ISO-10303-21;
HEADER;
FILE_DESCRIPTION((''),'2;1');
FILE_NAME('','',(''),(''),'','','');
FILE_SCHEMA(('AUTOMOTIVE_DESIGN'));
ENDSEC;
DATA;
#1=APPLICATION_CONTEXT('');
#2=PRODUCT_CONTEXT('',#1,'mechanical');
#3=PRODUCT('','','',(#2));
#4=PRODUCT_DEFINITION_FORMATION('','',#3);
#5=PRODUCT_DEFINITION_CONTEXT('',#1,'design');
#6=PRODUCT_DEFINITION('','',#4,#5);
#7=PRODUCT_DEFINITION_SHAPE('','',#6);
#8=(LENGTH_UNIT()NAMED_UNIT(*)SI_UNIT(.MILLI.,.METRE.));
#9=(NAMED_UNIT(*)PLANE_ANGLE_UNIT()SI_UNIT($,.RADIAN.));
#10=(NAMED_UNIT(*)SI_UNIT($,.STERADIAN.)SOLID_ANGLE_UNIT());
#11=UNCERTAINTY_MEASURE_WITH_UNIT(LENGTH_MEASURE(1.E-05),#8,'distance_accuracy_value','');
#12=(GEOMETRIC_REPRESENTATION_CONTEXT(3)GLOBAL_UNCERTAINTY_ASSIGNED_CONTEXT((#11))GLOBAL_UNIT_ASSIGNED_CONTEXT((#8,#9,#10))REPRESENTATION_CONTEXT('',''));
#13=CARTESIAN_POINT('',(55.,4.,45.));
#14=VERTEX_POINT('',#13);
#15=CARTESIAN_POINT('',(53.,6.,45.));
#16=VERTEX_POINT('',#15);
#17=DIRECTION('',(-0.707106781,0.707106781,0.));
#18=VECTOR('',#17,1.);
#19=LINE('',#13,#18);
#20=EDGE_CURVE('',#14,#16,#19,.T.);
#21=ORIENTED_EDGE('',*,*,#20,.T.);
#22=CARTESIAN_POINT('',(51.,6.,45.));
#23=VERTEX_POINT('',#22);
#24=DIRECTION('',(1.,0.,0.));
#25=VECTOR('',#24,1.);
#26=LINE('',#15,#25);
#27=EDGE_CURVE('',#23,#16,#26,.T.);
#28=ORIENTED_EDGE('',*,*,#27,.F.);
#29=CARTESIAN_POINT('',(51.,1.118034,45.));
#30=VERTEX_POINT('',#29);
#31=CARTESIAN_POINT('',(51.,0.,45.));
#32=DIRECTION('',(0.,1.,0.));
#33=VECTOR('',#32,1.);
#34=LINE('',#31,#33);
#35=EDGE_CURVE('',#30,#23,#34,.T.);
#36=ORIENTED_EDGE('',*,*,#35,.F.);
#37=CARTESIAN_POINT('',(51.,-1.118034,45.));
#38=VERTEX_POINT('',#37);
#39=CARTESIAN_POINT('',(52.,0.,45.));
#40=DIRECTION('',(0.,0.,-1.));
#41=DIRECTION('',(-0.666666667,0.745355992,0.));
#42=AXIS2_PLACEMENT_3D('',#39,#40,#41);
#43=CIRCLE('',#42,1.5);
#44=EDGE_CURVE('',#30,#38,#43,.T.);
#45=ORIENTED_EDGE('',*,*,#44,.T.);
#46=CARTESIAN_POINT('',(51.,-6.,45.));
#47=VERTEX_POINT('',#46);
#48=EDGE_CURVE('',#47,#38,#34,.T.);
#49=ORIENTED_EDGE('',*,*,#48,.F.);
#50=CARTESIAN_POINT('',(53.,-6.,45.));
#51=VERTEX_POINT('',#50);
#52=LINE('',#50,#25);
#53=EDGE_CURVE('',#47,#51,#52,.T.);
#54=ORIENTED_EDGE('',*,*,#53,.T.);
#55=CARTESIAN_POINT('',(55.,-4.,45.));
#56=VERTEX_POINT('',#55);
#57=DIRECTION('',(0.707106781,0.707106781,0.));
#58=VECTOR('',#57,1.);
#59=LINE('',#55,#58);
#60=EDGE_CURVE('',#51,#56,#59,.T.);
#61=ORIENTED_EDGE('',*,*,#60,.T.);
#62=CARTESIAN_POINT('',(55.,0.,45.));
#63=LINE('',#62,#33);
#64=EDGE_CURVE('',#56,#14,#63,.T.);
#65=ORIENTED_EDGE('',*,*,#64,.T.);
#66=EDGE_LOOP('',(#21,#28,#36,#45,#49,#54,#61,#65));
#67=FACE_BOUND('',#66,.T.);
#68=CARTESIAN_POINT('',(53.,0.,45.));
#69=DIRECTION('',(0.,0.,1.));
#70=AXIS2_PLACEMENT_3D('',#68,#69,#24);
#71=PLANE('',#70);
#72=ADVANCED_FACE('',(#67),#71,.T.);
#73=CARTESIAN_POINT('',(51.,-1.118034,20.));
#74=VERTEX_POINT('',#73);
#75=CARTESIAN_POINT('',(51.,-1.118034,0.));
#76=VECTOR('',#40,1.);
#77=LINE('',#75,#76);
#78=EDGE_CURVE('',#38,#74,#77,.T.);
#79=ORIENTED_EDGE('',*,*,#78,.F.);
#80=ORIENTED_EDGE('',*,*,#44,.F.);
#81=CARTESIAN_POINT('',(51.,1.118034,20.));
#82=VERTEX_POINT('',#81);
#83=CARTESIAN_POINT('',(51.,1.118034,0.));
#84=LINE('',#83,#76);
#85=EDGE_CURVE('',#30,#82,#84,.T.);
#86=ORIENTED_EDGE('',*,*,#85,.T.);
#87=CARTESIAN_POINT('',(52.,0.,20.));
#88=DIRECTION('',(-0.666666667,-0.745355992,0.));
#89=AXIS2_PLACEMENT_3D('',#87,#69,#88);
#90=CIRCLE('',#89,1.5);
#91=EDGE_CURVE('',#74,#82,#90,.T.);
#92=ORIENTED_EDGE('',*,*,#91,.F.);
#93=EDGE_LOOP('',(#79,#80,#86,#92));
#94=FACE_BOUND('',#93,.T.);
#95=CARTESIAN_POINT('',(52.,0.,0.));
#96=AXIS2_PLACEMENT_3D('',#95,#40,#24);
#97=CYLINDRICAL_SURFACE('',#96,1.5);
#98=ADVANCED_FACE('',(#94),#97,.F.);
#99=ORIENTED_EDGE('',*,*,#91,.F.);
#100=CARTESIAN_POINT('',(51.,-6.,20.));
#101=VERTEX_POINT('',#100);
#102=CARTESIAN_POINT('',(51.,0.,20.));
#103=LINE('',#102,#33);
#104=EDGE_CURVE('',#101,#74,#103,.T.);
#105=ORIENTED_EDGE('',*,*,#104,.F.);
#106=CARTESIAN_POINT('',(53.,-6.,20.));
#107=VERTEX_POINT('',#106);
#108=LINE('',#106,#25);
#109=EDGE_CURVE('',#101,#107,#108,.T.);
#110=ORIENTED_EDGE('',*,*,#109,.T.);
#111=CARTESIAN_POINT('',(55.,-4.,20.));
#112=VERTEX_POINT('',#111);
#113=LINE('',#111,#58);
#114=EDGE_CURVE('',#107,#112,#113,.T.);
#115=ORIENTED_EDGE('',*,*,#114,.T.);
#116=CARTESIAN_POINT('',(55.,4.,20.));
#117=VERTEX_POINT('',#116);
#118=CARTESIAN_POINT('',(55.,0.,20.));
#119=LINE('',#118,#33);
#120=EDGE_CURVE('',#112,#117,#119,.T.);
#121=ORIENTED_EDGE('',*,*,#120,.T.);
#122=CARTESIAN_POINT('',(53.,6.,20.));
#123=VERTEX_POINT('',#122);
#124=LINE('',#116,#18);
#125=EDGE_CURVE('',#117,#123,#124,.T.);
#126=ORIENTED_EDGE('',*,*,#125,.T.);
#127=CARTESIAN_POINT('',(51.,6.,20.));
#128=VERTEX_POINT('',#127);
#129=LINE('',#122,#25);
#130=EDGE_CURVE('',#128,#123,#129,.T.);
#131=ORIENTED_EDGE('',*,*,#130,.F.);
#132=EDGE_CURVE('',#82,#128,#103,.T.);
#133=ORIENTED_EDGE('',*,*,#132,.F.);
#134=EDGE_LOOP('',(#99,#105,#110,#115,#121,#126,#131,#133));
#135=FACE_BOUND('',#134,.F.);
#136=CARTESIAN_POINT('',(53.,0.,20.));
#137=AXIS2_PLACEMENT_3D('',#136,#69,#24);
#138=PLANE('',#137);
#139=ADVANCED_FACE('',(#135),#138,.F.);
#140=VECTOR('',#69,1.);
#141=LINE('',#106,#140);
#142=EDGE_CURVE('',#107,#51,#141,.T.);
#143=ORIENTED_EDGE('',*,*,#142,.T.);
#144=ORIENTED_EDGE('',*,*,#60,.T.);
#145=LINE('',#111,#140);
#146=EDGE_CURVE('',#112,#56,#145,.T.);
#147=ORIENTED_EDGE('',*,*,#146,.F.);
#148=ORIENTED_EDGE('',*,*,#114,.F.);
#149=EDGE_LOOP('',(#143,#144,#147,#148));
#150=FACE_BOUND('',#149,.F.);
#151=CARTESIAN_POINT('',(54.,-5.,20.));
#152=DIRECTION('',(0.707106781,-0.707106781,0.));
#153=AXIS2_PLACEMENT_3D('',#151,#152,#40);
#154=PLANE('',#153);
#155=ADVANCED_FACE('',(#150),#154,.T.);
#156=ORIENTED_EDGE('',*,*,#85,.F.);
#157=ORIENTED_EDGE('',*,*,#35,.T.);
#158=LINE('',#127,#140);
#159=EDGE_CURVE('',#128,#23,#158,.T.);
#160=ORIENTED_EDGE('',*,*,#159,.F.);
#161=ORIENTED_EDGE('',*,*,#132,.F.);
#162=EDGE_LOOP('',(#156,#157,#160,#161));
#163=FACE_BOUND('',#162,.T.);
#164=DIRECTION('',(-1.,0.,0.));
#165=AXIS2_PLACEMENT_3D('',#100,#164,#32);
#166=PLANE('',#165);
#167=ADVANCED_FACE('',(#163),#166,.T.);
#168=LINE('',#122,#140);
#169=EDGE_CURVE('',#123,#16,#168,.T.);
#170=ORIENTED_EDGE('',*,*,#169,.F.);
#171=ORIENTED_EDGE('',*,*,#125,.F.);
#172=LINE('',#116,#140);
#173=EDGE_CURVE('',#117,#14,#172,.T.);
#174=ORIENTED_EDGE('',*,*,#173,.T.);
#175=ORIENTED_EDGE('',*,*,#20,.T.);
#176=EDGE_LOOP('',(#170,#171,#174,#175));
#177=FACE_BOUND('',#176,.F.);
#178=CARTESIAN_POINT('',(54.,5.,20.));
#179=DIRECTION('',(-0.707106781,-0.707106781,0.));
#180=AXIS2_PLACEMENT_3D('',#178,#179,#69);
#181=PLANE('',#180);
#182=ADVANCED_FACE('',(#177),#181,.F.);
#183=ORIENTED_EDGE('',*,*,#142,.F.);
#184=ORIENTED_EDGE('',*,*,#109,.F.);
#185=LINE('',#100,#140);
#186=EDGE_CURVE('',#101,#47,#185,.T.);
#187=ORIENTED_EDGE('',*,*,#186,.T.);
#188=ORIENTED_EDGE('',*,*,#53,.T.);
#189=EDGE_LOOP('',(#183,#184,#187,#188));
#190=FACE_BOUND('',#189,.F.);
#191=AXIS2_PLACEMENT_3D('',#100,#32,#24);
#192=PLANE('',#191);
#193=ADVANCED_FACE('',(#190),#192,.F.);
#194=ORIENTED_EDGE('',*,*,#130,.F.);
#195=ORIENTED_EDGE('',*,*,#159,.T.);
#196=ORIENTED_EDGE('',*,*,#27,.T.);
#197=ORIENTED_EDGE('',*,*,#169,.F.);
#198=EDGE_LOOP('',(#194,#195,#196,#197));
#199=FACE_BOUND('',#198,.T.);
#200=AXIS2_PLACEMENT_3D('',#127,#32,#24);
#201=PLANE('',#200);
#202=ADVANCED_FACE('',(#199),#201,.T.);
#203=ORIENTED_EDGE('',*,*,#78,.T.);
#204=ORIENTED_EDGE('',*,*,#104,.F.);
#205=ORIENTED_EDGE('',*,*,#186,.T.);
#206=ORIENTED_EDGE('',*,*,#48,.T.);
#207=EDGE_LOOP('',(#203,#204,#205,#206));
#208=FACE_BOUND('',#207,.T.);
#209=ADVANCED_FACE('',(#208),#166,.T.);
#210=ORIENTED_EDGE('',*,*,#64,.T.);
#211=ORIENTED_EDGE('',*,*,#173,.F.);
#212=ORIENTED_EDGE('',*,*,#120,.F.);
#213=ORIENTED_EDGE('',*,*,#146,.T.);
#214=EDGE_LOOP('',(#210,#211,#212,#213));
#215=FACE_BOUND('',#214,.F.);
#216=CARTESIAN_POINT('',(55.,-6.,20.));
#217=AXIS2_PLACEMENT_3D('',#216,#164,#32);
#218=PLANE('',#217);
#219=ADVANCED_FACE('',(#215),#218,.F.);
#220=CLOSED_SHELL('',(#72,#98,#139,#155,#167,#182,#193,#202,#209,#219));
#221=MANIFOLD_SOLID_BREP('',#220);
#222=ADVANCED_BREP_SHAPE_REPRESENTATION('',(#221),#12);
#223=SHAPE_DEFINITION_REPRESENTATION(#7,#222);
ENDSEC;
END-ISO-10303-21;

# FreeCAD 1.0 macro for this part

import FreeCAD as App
import Part
import Sketcher


def edges_at(feature, points):
    """Names of the edges that pass closest to the given points."""
    edges = feature.Shape.Edges
    near = lambda p: min(range(len(edges)), key=lambda i: edges[i].distToShape(Part.Vertex(*p))[0])
    return sorted({f"Edge{near(p) + 1}" for p in points})

doc = App.newDocument("Part")
params = doc.addObject("Spreadsheet::Sheet", "Params")
for row, (alias, value) in enumerate([
    ("sketch1_diameter", "3 mm"),
    ("pad1_length", "50 mm"),
    ("sketch2_width", "4 mm"),
    ("sketch2_height", "12 mm"),
    ("pad2_length", "25 mm"),
    ("chamfer_size", "2 mm"),
], start=1):
    params.set(f"A{row}", alias)
    params.set(f"B{row}", "=" + value)
    params.setAlias(f"B{row}", alias)

body = doc.addObject("PartDesign::Body", "Body")

# Sketch on XY plane
sketch1 = doc.addObject("Sketcher::SketchObject", "Sketch")
body.addObject(sketch1)
sketch1.AttachmentSupport = (doc.XY_Plane, [""])
sketch1.MapMode = "FlatFace"
sketch1.addGeometry(Part.Circle(App.Vector(52, 0, 0), App.Vector(0, 0, 1), 1.5), False)
sketch1.addConstraint([
    Sketcher.Constraint("PointOnObject", 0, 3, -1),
    Sketcher.Constraint("Diameter", 0, 3.0),
    Sketcher.Constraint("DistanceX", -1, 1, 0, 3, 52.0),
])
sketch1.setExpression("Constraints[1]", "Params.sketch1_diameter")
pad1 = doc.addObject("PartDesign::Pad", "Pad")
body.addObject(pad1)
pad1.Profile = sketch1
pad1.setExpression("Length", "Params.pad1_length")
body2 = doc.addObject("PartDesign::Body", "Body001")

# Sketch on XY plane
sketch2 = doc.addObject("Sketcher::SketchObject", "Sketch001")
body2.addObject(sketch2)
sketch2.AttachmentSupport = (doc.getObject("XY_Plane001"), [""])
sketch2.MapMode = "FlatFace"
sketch2.AttachmentOffset = App.Placement(App.Vector(0, 0, 20), App.Rotation())
sketch2.addGeometry([
    Part.LineSegment(App.Vector(51, 6, 0), App.Vector(51, -6, 0)),
    Part.LineSegment(App.Vector(51, -6, 0), App.Vector(55, -6, 0)),
    Part.LineSegment(App.Vector(55, -6, 0), App.Vector(55, 6, 0)),
    Part.LineSegment(App.Vector(55, 6, 0), App.Vector(51, 6, 0)),
], False)
sketch2.addConstraint([
    Sketcher.Constraint("Coincident", 0, 2, 1, 1),
    Sketcher.Constraint("Coincident", 1, 2, 2, 1),
    Sketcher.Constraint("Coincident", 2, 2, 3, 1),
    Sketcher.Constraint("Coincident", 3, 2, 0, 1),
    Sketcher.Constraint("Vertical", 0),
    Sketcher.Constraint("Horizontal", 1),
    Sketcher.Constraint("Vertical", 2),
    Sketcher.Constraint("Horizontal", 3),
    Sketcher.Constraint("DistanceX", 1, 1, 1, 2, 4.0),
    Sketcher.Constraint("DistanceY", 0, 2, 0, 1, 12.0),
    Sketcher.Constraint("DistanceX", -1, 1, 0, 2, 51.0),
    Sketcher.Constraint("DistanceY", 0, 2, -1, 1, 6.0),
])
sketch2.setExpression("Constraints[8]", "Params.sketch2_width")
sketch2.setExpression("Constraints[9]", "Params.sketch2_height")
pad2 = doc.addObject("PartDesign::Pad", "Pad001")
body2.addObject(pad2)
pad2.Profile = sketch2
pad2.setExpression("Length", "Params.pad2_length")
doc.recompute()

chamfer = doc.addObject("PartDesign::Chamfer", "Chamfer")
body2.addObject(chamfer)
chamfer.Base = (pad2, edges_at(pad2, [(55, -6, 32.5), (55, 6, 32.5)]))
chamfer.setExpression("Size", "Params.chamfer_size")
doc.recompute()

boolean = doc.addObject("PartDesign::Boolean", "Boolean")
body2.addObject(boolean)
boolean.Type = "Cut"
boolean.addObjects([body])

doc.recompute()
